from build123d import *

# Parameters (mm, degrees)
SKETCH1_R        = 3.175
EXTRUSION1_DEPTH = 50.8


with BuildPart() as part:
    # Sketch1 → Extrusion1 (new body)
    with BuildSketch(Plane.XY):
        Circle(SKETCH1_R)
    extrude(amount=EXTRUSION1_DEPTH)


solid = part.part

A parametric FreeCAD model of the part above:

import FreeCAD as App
import Part
import Sketcher
from FreeCAD import Vector
Q = App.Units.Quantity

doc = App.newDocument("Part")
body = doc.addObject("PartDesign::Body", "Body")

# Sketch on XY plane
sketch1 = body.newObject("Sketcher::SketchObject", "Sketch")
sketch1.AttachmentSupport = (doc.getObject("XY_Plane"), [""])
sketch1.MapMode = "FlatFace"
sketch1.addGeometry(Part.Circle(Vector(0, 0, 0), Vector(0, 0, 1), 3.175), False)
sketch1.addConstraint([
    Sketcher.Constraint("Coincident", 0, 3, -1, 1),
    Sketcher.Constraint("Diameter", 0, Q("0.25 in")),
])
pad1 = body.newObject("PartDesign::Pad", "Pad")
pad1.Profile = sketch1
pad1.Length = Q("2 in")

doc.recompute()
